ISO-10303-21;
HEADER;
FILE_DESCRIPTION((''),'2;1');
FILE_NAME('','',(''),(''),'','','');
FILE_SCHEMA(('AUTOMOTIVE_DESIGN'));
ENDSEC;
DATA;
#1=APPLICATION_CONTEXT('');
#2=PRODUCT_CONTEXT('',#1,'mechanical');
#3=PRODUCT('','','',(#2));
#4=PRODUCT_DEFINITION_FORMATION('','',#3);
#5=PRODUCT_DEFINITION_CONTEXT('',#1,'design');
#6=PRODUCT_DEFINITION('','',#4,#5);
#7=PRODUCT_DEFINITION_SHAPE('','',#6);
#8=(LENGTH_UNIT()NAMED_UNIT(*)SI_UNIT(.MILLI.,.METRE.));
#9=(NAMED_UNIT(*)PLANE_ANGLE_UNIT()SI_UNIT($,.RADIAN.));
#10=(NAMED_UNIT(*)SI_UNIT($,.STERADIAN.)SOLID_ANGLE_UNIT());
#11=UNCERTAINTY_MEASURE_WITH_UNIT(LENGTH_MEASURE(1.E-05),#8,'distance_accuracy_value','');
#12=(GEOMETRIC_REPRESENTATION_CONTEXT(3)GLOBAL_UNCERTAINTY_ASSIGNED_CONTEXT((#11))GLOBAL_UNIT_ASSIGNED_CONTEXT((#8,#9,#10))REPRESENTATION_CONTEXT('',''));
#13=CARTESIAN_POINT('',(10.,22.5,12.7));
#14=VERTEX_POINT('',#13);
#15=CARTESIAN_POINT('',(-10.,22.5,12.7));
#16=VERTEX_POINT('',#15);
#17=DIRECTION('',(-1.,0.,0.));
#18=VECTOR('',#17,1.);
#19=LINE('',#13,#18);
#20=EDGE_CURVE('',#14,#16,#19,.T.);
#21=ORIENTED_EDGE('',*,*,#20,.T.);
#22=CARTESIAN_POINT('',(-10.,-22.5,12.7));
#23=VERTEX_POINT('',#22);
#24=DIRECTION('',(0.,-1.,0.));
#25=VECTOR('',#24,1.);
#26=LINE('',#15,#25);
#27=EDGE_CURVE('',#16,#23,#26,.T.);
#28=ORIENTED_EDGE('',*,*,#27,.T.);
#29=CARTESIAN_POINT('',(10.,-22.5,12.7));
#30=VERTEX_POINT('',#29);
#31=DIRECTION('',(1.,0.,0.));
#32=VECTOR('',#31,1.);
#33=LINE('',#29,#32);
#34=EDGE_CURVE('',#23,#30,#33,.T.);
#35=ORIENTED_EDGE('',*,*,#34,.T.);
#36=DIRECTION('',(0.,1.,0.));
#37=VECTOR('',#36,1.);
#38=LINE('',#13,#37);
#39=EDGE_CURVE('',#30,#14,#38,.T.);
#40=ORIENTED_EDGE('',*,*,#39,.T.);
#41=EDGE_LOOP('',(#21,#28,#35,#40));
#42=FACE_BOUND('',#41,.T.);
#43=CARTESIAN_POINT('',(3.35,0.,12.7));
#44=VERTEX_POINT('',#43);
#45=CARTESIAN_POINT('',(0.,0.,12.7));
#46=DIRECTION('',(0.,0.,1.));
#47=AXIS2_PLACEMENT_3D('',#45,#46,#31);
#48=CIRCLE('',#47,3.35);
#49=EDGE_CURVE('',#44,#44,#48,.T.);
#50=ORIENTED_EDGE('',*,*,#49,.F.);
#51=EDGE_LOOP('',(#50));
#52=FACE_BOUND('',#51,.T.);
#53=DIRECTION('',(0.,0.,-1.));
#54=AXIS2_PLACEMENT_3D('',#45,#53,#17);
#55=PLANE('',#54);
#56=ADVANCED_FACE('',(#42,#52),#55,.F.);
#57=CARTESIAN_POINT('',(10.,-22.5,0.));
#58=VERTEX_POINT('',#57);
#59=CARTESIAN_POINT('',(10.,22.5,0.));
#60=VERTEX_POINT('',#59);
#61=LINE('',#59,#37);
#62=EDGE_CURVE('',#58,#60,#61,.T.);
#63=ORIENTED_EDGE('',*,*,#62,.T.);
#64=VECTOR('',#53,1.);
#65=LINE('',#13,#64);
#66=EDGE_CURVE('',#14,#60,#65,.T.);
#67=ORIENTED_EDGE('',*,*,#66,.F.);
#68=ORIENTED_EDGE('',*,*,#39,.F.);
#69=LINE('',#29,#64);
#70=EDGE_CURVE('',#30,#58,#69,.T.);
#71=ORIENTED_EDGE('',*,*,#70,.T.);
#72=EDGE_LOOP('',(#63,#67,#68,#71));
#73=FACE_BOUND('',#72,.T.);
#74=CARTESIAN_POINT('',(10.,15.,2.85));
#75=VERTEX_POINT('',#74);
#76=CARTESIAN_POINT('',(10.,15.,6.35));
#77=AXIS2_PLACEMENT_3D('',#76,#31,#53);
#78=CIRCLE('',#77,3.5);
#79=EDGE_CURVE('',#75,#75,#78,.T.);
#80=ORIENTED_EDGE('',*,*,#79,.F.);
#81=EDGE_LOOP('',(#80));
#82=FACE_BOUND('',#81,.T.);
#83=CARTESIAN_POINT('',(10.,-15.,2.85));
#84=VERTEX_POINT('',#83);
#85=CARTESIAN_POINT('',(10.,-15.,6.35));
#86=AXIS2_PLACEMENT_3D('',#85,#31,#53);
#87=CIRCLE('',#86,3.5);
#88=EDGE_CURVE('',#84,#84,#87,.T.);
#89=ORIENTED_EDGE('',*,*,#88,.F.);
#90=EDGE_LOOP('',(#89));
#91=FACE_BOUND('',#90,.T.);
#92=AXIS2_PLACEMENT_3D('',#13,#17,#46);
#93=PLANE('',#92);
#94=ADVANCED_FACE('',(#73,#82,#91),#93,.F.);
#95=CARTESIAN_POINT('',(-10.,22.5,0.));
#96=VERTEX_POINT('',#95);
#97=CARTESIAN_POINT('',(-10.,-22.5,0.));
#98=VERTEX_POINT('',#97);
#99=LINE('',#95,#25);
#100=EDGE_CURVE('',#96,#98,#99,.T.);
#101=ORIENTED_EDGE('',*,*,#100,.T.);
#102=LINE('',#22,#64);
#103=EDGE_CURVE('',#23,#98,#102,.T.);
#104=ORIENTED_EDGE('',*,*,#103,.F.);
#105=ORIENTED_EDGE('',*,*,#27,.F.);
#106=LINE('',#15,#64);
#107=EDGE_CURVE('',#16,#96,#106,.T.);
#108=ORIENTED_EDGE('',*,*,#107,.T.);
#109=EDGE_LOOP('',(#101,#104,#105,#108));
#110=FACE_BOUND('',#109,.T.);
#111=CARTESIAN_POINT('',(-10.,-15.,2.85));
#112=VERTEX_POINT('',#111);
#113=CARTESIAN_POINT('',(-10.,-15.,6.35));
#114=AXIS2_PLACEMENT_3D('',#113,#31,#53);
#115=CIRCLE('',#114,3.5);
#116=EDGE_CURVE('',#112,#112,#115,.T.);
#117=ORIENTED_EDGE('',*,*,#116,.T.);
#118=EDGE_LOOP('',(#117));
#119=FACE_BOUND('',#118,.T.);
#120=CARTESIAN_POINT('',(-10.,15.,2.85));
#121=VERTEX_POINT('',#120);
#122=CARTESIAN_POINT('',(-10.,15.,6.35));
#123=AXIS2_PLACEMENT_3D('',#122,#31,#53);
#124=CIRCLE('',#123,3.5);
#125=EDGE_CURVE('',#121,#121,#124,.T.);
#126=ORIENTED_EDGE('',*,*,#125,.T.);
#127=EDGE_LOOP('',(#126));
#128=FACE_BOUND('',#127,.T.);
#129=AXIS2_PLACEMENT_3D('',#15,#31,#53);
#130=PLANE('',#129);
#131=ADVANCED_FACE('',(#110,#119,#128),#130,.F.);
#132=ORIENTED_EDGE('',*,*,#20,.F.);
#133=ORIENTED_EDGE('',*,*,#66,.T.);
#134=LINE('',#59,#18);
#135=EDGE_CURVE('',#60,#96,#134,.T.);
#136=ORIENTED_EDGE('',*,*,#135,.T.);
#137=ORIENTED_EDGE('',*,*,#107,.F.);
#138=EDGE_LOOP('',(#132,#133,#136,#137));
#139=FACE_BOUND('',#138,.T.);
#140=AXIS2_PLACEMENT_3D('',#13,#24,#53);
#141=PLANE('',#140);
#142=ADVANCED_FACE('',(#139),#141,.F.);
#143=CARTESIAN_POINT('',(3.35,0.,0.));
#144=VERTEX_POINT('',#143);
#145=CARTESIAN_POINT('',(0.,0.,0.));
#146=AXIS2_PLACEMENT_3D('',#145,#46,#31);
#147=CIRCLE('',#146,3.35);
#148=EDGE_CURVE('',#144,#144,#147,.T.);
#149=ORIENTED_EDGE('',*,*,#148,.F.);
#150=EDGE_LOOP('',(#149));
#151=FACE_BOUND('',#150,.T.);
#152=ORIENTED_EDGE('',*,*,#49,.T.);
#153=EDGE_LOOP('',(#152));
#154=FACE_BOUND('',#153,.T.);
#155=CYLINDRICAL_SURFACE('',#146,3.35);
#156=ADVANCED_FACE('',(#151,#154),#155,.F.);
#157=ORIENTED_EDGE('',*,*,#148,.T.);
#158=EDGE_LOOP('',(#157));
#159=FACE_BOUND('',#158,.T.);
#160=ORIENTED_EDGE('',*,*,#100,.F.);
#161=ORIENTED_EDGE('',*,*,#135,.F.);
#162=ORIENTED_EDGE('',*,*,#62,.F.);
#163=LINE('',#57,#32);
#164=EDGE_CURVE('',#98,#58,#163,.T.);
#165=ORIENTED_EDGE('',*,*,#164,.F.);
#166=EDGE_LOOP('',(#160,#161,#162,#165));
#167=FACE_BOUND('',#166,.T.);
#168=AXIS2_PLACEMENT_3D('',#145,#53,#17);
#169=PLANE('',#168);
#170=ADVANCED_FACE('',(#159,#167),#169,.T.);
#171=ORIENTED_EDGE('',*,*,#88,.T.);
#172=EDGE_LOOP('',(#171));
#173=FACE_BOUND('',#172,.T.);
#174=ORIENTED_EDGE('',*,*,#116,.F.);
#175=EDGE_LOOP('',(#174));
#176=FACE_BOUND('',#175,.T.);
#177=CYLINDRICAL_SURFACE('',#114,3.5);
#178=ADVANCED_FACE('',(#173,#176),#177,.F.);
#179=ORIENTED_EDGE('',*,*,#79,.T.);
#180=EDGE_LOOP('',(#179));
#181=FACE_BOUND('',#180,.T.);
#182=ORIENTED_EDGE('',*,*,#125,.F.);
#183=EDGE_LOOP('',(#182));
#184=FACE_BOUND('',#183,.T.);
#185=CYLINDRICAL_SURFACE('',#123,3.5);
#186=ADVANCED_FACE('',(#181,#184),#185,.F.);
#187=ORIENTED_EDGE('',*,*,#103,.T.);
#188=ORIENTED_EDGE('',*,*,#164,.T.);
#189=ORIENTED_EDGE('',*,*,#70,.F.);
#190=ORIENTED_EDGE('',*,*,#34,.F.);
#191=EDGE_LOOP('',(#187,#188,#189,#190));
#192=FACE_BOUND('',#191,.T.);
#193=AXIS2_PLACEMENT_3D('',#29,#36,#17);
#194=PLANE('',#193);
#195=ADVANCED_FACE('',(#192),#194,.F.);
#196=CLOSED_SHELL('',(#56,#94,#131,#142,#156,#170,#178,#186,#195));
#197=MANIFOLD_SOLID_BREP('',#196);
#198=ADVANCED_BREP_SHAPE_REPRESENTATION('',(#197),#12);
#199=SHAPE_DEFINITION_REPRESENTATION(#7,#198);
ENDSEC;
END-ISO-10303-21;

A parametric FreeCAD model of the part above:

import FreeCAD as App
import Part
import Sketcher


def add_polygon(sketch, points):
    """Adds a closed chain of lines whose ends are joined by coincident constraints."""
    first, n = sketch.GeometryCount, len(points)
    for a, b in zip(points, points[1:] + points[:1]):
        sketch.addGeometry(Part.LineSegment(App.Vector(*a, 0), App.Vector(*b, 0)), False)
    for i in range(n):
        sketch.addConstraint(Sketcher.Constraint("Coincident", first + i, 2, first + (i + 1) % n, 1))

doc = App.newDocument("Part")
body = doc.addObject("PartDesign::Body", "Body")

sketch1 = doc.addObject("Sketcher::SketchObject", "Sketch")
body.addObject(sketch1)
sketch1.AttachmentSupport = (doc.XY_Plane, [""])
sketch1.MapMode = "FlatFace"
add_polygon(sketch1, [(-10, 22.5), (-10, -22.5), (10, -22.5), (10, 22.5)])
sketch1.addConstraint([
    Sketcher.Constraint("Vertical", 0),
    Sketcher.Constraint("Horizontal", 1),
    Sketcher.Constraint("Vertical", 2),
    Sketcher.Constraint("Horizontal", 3),
    Sketcher.Constraint("Symmetric", 0, 2, 2, 2, -1, 1),
    Sketcher.Constraint("DistanceX", 1, 1, 1, 2, 20.0),
    Sketcher.Constraint("DistanceY", 0, 2, 0, 1, 45.0),
])
pad1 = doc.addObject("PartDesign::Pad", "Pad")
body.addObject(pad1)
pad1.Profile = sketch1
pad1.Length = 12.7

sketch2 = doc.addObject("Sketcher::SketchObject", "Sketch001")
body.addObject(sketch2)
sketch2.AttachmentSupport = (doc.XY_Plane, [""])
sketch2.MapMode = "FlatFace"
sketch2.AttachmentOffset = App.Placement(App.Vector(0, 0, 12.7), App.Rotation())
sketch2.addGeometry(Part.Circle(App.Vector(0, 0, 0), App.Vector(0, 0, 1), 3.35), False)
sketch2.addConstraint([
    Sketcher.Constraint("Coincident", 0, 3, -1, 1),
    Sketcher.Constraint("Diameter", 0, 6.7),
])
pocket1 = doc.addObject("PartDesign::Pocket", "Pocket")
body.addObject(pocket1)
pocket1.Profile = sketch2
pocket1.Type = "ThroughAll"

sketch3 = doc.addObject("Sketcher::SketchObject", "Sketch002")
body.addObject(sketch3)
sketch3.AttachmentSupport = (doc.YZ_Plane, [""])
sketch3.MapMode = "FlatFace"
sketch3.AttachmentOffset = App.Placement(App.Vector(0, 0, 10), App.Rotation())
sketch3.addGeometry([
    Part.Circle(App.Vector(15, 6.35, 0), App.Vector(0, 0, 1), 3.5),
    Part.Circle(App.Vector(-15, 6.35, 0), App.Vector(0, 0, 1), 3.5),
], False)
sketch3.addConstraint([
    Sketcher.Constraint("Equal", 0, 1),
    Sketcher.Constraint("Symmetric", 0, 3, 1, 3, -2),
    Sketcher.Constraint("Diameter", 0, 7.0),
    Sketcher.Constraint("DistanceX", -1, 1, 0, 3, 15.0),
    Sketcher.Constraint("DistanceY", -1, 1, 0, 3, 6.35),
])
pocket2 = doc.addObject("PartDesign::Pocket", "Pocket001")
body.addObject(pocket2)
pocket2.Profile = sketch3
pocket2.Type = "ThroughAll"

doc.recompute()
